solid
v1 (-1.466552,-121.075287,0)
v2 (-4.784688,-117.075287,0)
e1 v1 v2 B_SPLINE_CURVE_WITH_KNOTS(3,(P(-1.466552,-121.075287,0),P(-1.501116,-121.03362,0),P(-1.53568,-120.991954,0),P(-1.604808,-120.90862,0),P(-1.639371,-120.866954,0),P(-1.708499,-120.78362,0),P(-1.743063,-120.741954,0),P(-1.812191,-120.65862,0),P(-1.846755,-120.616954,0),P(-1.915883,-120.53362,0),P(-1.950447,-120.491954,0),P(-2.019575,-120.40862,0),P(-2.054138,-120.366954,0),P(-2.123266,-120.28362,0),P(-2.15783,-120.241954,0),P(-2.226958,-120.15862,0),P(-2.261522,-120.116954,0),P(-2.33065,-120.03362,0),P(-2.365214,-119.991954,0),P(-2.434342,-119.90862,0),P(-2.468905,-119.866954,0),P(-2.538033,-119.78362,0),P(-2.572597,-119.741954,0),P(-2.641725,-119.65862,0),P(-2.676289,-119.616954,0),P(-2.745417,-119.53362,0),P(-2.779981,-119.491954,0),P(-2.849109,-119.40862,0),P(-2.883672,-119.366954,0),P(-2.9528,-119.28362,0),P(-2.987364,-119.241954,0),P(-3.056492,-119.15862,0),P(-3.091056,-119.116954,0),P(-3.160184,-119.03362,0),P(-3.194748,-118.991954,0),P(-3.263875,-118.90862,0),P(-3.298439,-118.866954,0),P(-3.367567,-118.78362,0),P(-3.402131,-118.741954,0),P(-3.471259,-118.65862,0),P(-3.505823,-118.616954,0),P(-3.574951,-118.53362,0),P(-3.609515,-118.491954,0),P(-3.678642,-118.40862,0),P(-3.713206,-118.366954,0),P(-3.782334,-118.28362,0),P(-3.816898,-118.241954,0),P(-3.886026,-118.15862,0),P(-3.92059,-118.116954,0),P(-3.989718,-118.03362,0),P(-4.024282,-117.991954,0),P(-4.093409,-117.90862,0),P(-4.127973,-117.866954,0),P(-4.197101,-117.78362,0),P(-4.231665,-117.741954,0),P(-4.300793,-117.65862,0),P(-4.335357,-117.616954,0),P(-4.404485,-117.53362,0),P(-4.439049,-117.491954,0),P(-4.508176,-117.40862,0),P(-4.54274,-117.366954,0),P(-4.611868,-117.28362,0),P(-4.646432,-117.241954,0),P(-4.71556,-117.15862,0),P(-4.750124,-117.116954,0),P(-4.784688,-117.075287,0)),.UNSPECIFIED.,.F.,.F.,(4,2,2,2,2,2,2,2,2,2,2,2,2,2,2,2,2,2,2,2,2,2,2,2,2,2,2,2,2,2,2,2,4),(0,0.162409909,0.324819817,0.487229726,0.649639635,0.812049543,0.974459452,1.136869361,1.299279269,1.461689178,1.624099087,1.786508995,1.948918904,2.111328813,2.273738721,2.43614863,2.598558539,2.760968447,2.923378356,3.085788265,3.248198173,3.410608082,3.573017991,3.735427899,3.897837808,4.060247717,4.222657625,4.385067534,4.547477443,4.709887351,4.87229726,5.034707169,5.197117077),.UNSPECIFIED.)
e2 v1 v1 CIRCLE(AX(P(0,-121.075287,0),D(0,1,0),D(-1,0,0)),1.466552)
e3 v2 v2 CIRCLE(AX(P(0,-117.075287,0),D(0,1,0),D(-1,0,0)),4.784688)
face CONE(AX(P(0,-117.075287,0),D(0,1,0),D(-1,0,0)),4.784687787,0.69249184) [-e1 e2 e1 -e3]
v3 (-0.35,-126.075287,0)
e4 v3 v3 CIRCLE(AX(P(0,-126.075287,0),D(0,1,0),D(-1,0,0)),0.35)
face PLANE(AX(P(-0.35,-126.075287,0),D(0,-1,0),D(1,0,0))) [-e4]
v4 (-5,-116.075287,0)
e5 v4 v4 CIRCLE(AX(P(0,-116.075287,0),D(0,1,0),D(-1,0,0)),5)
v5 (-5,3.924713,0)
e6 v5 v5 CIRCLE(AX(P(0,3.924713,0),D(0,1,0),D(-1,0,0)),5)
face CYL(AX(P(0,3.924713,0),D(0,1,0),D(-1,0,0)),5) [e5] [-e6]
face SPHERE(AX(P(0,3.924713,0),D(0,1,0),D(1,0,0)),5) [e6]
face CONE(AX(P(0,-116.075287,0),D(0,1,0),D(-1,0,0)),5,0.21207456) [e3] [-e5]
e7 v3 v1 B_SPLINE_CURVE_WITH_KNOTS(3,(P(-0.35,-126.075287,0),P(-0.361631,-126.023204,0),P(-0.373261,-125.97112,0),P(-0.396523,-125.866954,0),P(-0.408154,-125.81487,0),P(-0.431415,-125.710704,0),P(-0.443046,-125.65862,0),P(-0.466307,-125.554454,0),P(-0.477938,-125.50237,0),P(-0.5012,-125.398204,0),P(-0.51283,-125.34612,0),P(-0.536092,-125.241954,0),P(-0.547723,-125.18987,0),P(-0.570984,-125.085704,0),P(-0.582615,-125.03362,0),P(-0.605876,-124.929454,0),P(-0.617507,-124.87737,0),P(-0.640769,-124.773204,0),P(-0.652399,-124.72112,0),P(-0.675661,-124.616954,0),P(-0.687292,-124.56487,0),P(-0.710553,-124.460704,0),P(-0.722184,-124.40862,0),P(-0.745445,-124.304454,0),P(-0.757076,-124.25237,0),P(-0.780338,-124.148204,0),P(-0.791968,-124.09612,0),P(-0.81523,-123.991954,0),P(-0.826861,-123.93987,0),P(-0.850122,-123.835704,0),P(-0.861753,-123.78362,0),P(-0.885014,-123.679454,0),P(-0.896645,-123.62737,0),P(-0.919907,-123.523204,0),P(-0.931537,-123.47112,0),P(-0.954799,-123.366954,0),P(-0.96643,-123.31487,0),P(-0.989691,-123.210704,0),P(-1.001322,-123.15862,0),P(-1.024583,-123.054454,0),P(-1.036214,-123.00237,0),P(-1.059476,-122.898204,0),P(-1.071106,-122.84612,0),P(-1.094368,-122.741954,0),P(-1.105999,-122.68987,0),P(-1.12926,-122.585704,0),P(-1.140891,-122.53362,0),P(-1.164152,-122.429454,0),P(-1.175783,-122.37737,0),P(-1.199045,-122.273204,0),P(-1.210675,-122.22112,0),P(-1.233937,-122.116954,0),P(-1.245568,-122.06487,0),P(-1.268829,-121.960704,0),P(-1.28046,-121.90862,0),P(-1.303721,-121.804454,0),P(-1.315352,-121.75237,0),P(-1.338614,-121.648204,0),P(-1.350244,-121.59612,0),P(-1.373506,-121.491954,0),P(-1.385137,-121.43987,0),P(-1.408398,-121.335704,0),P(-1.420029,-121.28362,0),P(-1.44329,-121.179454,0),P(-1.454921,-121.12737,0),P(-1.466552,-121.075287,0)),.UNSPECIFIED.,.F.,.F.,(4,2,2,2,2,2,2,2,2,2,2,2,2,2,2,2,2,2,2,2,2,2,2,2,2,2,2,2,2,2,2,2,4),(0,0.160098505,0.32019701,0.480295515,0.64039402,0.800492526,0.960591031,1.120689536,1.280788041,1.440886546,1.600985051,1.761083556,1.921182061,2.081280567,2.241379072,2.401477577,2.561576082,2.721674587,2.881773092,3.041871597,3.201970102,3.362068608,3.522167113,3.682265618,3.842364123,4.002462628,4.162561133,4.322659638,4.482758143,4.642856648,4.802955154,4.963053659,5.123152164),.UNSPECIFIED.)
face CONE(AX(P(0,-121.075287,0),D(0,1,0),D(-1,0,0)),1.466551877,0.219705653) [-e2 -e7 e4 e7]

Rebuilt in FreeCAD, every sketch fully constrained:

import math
import FreeCAD as App
import Part
import Sketcher

V = App.Vector

doc = App.newDocument("Part")
body = doc.addObject("PartDesign::Body", "Body")

sketch1 = body.newObject("Sketcher::SketchObject", "Sketch")
sketch1.AttachmentSupport = (doc.getObject("XY_Plane"), [""])
sketch1.MapMode = "FlatFace"
sketch1.addGeometry([
    Part.LineSegment(V(-0.35, -126.075287, 0), V(0, -126.075287, 0)),
    Part.LineSegment(V(0, -126.075287, 0), V(0, 8.924713, 0)),
    Part.ArcOfCircle(Part.Circle(V(0, 3.924713, 0), V(0, 0, 1), 5), math.radians(90), math.radians(180)),
    Part.LineSegment(V(-5, 3.924713, 0), V(-5, -116.075287, 0)),
    Part.LineSegment(V(-5, -116.075287, 0), V(-4.784688, -117.075287, 0)),
    Part.LineSegment(V(-4.784688, -117.075287, 0), V(-1.466552, -121.075287, 0)),
    Part.LineSegment(V(-1.466552, -121.075287, 0), V(-1.399585, -121.375171, 0)),
    Part.LineSegment(V(-1.399585, -121.375171, 0), V(-0.35, -126.075287, 0)),
], False)
sketch1.addConstraint([
    Sketcher.Constraint("Coincident", 0, 2, 1, 1),
    Sketcher.Constraint("Coincident", 1, 2, 2, 1),
    Sketcher.Constraint("Tangent", 2, 2, 3, 1),
    Sketcher.Constraint("Coincident", 3, 2, 4, 1),
    Sketcher.Constraint("Coincident", 4, 2, 5, 1),
    Sketcher.Constraint("Coincident", 5, 2, 6, 1),
    Sketcher.Constraint("Coincident", 6, 2, 7, 1),
    Sketcher.Constraint("Coincident", 7, 2, 0, 1),
    Sketcher.Constraint("Horizontal", 0),
    Sketcher.Constraint("Vertical", 1),
    Sketcher.Constraint("Vertical", 3),
    Sketcher.Constraint("PointOnObject", 2, 3, -2),
    Sketcher.Constraint("PointOnObject", 0, 2, -2),
    Sketcher.Constraint("Parallel", 6, 7),
    Sketcher.Constraint("Radius", 2, 5.0),
    Sketcher.Constraint("DistanceY", 1, 1, 1, 2, 135.0),
    Sketcher.Constraint("DistanceY", 3, 2, 3, 1, 120.0),
    Sketcher.Constraint("DistanceY", 4, 2, 3, 2, 1.0),
    Sketcher.Constraint("DistanceY", 5, 2, 4, 2, 4.0),
    Sketcher.Constraint("DistanceX", 0, 1, 0, 2, 0.35),
    Sketcher.Constraint("Distance", 6, 0.30727),
    Sketcher.Constraint("DistanceX", 5, 2, -1, 1, 1.466552),
    Sketcher.Constraint("DistanceY", 6, 2, -1, 1, 121.375171),
    Sketcher.Constraint("Distance", 4, 1.022917),
])
revolution = body.newObject("PartDesign::Revolution", "Revolution")
revolution.Profile = sketch1
revolution.ReferenceAxis = (sketch1, ["V_Axis"])
revolution.Angle = 360

doc.recompute()
